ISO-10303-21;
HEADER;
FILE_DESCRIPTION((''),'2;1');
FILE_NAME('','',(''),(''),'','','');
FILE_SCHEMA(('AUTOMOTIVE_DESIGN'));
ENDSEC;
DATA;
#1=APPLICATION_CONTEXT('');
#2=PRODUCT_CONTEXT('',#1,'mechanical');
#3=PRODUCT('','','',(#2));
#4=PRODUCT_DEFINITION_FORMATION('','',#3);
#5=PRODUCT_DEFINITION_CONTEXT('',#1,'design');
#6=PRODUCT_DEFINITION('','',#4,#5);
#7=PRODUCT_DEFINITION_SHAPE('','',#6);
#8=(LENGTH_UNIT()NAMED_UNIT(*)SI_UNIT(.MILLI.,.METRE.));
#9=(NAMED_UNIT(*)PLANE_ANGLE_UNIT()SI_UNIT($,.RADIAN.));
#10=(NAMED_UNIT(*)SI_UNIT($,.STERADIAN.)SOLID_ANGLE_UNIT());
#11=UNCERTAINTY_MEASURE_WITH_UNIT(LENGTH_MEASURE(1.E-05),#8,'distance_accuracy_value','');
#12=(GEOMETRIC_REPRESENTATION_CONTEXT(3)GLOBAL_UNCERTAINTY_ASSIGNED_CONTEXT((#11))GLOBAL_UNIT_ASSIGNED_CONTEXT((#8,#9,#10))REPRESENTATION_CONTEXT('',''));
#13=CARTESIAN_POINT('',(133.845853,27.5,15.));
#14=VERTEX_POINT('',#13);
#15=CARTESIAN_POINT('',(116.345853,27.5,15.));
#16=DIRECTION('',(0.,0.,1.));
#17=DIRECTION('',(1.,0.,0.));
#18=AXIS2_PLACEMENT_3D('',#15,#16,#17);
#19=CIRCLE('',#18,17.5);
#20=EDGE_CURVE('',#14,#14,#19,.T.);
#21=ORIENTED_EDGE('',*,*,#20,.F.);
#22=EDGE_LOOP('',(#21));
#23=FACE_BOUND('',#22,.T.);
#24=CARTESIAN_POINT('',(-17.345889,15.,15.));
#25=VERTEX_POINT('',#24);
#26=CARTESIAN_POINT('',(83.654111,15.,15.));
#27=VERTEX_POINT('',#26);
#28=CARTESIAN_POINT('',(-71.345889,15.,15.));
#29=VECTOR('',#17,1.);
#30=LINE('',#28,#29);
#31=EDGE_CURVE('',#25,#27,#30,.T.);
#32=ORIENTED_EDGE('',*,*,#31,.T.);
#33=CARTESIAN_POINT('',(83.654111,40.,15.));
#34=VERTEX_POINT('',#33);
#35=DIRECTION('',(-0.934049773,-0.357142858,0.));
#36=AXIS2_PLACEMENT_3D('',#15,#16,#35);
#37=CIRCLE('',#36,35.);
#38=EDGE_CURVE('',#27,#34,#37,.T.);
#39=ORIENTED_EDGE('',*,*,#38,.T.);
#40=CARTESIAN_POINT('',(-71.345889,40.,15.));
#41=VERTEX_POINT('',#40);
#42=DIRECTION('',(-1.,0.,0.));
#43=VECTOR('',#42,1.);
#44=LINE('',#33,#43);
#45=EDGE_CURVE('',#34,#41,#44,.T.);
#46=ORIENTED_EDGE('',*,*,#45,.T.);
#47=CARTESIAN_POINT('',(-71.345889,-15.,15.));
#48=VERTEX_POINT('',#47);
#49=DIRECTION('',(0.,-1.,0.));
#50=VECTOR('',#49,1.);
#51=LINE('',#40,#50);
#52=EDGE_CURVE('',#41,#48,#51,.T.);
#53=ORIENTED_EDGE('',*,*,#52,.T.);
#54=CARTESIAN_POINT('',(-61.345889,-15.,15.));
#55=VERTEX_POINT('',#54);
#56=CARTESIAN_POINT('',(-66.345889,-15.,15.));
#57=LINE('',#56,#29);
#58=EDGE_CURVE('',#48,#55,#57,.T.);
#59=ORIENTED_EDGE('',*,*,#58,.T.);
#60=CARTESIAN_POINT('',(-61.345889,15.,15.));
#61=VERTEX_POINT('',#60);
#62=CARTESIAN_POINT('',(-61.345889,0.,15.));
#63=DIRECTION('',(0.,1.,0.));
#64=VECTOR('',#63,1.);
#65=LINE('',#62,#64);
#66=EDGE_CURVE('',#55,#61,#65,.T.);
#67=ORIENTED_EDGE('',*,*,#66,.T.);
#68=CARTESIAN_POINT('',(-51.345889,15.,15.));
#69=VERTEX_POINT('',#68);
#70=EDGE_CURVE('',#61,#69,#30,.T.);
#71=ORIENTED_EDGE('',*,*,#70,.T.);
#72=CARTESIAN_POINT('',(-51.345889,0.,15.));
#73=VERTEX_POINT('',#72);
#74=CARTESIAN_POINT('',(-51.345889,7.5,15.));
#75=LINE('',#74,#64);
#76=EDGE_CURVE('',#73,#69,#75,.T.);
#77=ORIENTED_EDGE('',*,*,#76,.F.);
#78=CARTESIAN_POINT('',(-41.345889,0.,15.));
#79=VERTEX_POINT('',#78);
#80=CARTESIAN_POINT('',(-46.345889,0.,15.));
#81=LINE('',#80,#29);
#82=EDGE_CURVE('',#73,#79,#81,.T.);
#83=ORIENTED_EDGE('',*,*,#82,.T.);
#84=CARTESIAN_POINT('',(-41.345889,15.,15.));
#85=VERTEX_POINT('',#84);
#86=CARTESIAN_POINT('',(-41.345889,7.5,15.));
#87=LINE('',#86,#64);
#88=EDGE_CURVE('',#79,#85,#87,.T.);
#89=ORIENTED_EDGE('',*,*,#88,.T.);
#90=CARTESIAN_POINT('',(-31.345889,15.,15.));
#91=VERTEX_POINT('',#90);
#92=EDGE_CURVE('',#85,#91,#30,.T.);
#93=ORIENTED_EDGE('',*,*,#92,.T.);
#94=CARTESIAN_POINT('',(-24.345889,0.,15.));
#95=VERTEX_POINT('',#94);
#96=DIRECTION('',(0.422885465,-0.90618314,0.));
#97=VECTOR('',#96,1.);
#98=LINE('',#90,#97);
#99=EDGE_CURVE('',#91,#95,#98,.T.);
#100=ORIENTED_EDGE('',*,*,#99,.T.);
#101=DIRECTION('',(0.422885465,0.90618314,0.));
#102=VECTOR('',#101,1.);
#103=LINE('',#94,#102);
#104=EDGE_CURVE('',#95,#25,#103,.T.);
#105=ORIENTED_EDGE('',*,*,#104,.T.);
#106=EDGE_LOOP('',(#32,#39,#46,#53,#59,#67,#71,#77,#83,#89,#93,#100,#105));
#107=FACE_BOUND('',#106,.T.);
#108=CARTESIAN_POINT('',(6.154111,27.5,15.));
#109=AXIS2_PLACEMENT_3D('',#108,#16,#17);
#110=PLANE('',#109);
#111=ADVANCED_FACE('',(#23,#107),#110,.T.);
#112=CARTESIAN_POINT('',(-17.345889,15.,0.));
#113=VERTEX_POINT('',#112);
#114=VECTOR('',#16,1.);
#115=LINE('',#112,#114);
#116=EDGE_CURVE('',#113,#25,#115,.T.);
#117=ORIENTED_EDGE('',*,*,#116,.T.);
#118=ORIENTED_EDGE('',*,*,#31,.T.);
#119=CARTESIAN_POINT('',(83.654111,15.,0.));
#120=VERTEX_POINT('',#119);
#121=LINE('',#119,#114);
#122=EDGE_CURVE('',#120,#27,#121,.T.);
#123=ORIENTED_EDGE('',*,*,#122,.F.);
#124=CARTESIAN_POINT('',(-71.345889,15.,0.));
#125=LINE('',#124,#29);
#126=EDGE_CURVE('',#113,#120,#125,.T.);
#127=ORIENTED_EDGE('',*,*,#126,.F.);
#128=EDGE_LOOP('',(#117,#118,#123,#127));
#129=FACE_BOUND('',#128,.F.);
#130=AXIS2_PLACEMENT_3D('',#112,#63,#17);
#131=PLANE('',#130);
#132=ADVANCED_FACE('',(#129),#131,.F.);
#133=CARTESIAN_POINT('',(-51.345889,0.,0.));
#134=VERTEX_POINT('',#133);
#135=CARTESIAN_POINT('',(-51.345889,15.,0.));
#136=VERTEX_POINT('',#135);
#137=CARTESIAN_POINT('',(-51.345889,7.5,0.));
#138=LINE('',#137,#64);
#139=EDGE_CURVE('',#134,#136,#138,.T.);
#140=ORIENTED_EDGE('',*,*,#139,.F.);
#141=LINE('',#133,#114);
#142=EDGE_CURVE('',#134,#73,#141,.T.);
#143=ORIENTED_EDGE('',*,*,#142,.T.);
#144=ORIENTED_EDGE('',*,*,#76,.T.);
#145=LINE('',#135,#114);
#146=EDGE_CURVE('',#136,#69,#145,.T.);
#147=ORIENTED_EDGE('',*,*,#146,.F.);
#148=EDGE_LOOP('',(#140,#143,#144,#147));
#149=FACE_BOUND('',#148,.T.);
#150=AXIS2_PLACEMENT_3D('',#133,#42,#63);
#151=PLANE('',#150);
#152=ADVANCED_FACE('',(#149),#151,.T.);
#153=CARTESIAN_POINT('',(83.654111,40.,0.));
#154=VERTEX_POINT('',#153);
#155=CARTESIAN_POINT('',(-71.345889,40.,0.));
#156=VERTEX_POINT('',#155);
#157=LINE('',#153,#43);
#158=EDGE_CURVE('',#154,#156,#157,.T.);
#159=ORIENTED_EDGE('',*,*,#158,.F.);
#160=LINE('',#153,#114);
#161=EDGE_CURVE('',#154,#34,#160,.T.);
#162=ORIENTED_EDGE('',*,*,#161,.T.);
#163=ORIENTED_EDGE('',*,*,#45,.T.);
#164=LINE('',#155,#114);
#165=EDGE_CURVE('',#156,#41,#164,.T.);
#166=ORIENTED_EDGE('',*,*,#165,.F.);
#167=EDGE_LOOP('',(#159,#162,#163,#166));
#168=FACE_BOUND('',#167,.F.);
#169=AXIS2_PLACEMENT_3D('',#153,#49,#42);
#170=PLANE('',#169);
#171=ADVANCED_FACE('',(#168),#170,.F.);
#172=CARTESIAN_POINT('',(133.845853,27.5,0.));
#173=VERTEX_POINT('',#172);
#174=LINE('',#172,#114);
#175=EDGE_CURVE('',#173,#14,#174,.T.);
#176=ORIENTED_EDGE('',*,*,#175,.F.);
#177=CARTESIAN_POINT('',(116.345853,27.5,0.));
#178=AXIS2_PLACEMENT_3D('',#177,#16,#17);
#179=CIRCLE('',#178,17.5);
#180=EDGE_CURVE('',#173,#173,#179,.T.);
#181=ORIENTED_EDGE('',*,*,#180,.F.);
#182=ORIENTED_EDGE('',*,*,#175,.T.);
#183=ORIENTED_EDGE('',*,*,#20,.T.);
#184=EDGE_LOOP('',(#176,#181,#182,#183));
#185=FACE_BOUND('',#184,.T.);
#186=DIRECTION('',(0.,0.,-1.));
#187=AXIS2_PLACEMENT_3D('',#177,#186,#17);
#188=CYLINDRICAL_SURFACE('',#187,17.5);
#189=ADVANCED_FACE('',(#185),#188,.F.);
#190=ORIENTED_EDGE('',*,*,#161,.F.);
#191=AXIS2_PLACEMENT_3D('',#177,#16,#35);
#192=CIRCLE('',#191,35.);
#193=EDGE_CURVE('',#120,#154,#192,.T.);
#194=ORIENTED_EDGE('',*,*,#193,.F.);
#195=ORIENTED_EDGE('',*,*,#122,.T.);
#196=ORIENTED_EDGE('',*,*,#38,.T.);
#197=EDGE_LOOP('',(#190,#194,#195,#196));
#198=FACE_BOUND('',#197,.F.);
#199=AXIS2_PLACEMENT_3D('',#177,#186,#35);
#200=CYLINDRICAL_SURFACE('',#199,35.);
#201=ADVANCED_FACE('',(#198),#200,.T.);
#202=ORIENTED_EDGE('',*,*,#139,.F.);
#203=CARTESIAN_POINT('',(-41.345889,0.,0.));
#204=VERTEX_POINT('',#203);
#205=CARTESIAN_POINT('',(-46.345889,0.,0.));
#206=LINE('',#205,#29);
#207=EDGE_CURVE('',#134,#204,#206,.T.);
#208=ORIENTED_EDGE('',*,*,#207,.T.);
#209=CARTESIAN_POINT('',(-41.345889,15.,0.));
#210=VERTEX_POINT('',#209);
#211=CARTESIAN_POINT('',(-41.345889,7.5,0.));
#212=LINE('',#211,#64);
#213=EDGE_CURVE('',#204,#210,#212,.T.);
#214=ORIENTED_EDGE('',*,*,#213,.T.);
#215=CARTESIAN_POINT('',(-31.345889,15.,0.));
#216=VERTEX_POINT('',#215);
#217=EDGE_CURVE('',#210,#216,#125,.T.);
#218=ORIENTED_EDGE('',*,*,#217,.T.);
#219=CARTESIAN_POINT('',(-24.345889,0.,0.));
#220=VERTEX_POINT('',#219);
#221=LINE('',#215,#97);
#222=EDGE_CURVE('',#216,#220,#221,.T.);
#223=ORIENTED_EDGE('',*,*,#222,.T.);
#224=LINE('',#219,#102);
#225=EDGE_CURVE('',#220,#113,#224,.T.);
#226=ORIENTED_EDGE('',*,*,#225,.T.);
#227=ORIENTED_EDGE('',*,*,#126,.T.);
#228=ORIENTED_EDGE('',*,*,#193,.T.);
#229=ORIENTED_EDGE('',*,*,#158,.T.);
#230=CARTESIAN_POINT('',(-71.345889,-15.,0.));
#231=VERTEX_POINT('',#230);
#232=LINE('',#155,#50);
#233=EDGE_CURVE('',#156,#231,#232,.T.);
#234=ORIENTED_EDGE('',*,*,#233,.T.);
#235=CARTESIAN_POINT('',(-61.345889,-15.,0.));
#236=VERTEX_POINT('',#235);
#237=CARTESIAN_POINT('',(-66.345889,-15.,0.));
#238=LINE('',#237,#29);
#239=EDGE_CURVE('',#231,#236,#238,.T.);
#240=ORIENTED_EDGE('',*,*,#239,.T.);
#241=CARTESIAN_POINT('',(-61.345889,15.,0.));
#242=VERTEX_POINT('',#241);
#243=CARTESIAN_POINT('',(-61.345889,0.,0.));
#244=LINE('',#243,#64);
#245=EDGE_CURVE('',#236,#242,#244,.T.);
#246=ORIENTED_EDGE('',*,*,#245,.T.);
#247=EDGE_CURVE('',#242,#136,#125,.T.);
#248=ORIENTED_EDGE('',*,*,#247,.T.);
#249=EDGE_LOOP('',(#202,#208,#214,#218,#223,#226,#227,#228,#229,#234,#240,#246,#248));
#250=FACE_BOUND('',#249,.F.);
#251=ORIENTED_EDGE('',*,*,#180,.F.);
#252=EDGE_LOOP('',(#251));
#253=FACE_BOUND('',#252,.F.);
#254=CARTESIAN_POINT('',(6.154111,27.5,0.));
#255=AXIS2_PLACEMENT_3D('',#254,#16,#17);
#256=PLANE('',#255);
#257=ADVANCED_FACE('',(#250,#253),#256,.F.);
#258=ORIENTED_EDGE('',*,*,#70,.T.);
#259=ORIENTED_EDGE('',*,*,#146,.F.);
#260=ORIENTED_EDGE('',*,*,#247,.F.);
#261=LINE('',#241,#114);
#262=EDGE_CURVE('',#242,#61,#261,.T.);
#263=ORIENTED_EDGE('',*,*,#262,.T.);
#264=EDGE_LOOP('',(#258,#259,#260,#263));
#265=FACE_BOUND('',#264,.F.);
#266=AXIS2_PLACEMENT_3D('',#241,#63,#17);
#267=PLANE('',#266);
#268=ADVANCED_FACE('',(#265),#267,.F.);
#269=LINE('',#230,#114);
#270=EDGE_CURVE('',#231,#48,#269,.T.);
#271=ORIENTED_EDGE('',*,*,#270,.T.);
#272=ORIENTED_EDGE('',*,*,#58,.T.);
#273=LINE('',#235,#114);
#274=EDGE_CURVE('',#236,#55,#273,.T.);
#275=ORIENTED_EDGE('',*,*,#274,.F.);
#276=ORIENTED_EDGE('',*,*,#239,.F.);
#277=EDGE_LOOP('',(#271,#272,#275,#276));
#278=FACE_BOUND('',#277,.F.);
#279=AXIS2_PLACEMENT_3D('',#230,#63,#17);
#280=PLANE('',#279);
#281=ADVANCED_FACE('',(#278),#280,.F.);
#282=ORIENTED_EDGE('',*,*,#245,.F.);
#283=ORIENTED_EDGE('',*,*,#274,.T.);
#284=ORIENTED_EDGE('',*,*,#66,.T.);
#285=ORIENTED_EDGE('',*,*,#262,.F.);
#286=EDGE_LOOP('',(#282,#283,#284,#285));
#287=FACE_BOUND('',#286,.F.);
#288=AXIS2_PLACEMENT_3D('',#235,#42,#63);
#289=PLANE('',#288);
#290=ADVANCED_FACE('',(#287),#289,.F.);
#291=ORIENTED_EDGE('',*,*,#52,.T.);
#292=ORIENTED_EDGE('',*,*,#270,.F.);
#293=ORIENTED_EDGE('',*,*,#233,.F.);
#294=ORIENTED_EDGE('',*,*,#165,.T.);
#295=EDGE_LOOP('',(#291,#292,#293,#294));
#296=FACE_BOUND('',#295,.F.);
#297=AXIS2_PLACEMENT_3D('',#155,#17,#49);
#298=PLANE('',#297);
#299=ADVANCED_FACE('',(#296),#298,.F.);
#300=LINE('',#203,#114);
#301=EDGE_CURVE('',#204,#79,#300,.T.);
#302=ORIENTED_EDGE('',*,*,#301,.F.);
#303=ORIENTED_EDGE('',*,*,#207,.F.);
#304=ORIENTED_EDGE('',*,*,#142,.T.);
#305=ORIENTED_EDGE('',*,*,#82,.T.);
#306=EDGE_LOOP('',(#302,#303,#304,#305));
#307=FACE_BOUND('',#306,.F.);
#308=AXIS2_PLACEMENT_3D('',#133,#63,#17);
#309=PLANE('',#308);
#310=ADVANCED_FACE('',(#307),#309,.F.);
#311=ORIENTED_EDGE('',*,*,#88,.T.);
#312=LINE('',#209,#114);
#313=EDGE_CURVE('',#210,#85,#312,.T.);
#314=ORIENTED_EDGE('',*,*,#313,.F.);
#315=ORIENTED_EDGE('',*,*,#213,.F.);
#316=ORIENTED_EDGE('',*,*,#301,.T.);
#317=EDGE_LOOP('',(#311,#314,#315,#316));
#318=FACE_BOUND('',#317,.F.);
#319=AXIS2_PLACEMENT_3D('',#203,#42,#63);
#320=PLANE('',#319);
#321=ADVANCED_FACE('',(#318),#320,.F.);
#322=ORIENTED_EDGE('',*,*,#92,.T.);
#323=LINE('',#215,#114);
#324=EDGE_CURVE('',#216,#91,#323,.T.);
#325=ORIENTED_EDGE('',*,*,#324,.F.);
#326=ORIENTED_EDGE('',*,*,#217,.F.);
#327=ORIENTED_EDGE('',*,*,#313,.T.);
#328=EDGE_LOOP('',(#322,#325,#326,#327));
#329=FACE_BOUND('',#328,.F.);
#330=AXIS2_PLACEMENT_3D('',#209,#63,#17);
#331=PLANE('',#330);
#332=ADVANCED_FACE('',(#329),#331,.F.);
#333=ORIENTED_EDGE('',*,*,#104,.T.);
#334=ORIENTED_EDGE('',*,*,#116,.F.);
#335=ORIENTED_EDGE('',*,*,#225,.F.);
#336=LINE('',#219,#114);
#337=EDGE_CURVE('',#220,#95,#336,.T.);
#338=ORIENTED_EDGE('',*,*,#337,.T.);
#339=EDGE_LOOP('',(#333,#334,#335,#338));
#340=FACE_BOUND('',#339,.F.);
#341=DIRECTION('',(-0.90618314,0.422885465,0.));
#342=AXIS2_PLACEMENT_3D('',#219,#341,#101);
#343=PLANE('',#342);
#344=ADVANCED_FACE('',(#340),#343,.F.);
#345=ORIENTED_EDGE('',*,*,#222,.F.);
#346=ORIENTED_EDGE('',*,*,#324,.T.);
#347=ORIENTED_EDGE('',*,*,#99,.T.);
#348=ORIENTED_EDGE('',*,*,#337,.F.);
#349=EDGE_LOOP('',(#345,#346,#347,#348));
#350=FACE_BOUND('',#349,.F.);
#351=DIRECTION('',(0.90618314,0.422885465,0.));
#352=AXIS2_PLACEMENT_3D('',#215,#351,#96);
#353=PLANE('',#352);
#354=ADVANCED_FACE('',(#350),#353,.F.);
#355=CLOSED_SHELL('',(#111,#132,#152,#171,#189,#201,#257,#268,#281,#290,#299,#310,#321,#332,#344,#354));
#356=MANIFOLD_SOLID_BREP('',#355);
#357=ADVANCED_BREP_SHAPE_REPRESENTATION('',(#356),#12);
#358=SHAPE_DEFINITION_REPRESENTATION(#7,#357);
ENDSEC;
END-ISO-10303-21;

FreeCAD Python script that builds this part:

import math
import FreeCAD as App
import Part
import Sketcher

doc = App.newDocument("Part")
body = doc.addObject("PartDesign::Body", "Body")

# Sketch on XY plane
sketch1 = doc.addObject("Sketcher::SketchObject", "Sketch")
body.addObject(sketch1)
sketch1.AttachmentSupport = (doc.XY_Plane, [""])
sketch1.MapMode = "FlatFace"
sketch1.addGeometry([
    Part.LineSegment(App.Vector(-71, 40, 0), App.Vector(-71, -15, 0)),  # 0
    Part.LineSegment(App.Vector(-71, -15, 0), App.Vector(-61, -15, 0)),  # 1
    Part.LineSegment(App.Vector(-61, -15, 0), App.Vector(-61, 15, 0)),  # 2
    Part.LineSegment(App.Vector(-61, 15, 0), App.Vector(-51, 15, 0)),  # 3
    Part.LineSegment(App.Vector(-51, 15, 0), App.Vector(-51, 0, 0)),  # 4
    Part.LineSegment(App.Vector(-51, 0, 0), App.Vector(-41, 0, 0)),  # 5
    Part.LineSegment(App.Vector(-41, 0, 0), App.Vector(-41, 15, 0)),  # 6
    Part.LineSegment(App.Vector(-41, 15, 0), App.Vector(-31, 15, 0)),  # 7
    Part.LineSegment(App.Vector(-31, 15, 0), App.Vector(-24, 0, 0)),  # 8
    Part.LineSegment(App.Vector(-24, 0, 0), App.Vector(-17, 15, 0)),  # 9
    Part.LineSegment(App.Vector(-17, 15, 0), App.Vector(84, 15, 0)),  # 10
    Part.ArcOfCircle(Part.Circle(App.Vector(116, 28, 0), App.Vector(0, 0, 1), 35), math.radians(-159), math.radians(159)),  # 11
    Part.LineSegment(App.Vector(84, 40, 0), App.Vector(-71, 40, 0)),  # 12
    Part.Circle(App.Vector(116, 28, 0), App.Vector(0, 0, 1), 18),  # 13
], False)
sketch1.addConstraint([
    Sketcher.Constraint("Coincident", 0, 2, 1, 1),
    Sketcher.Constraint("Coincident", 1, 2, 2, 1),
    Sketcher.Constraint("Coincident", 2, 2, 3, 1),
    Sketcher.Constraint("Coincident", 3, 2, 4, 1),
    Sketcher.Constraint("Coincident", 4, 2, 5, 1),
    Sketcher.Constraint("Coincident", 5, 2, 6, 1),
    Sketcher.Constraint("Coincident", 6, 2, 7, 1),
    Sketcher.Constraint("Coincident", 7, 2, 8, 1),
    Sketcher.Constraint("Coincident", 8, 2, 9, 1),
    Sketcher.Constraint("Coincident", 9, 2, 10, 1),
    Sketcher.Constraint("Coincident", 10, 2, 11, 1),
    Sketcher.Constraint("Coincident", 11, 2, 12, 1),
    Sketcher.Constraint("Coincident", 12, 2, 0, 1),
    Sketcher.Constraint("Vertical", 0),
    Sketcher.Constraint("Horizontal", 1),
    Sketcher.Constraint("Vertical", 2),
    Sketcher.Constraint("Horizontal", 3),
    Sketcher.Constraint("Vertical", 4),
    Sketcher.Constraint("Horizontal", 5),
    Sketcher.Constraint("Vertical", 6),
    Sketcher.Constraint("Horizontal", 7),
    Sketcher.Constraint("Horizontal", 10),
    Sketcher.Constraint("Horizontal", 12),
    Sketcher.Constraint("Coincident", 13, 3, 11, 3),
    Sketcher.Constraint("PointOnObject", 4, 2, -1),
    Sketcher.Constraint("PointOnObject", 8, 2, -1),
    Sketcher.Constraint("Horizontal", 3, 2, 6, 2),
    Sketcher.Constraint("Horizontal", 7, 2, 9, 2),
    Sketcher.Constraint("Vertical", 10, 2, 11, 2),
    Sketcher.Constraint("Equal", 1, 3),
    Sketcher.Constraint("Equal", 3, 5),
    Sketcher.Constraint("Equal", 5, 7),
    Sketcher.Constraint("Equal", 8, 9),
    Sketcher.Constraint("Diameter", 13, 35.0),
    Sketcher.Constraint("Radius", 11, 35.0),
    Sketcher.Constraint("DistanceX", 1, 1, 1, 2, 10.0),
    Sketcher.Constraint("DistanceX", 10, 1, 10, 2, 101.0),
    Sketcher.Constraint("DistanceX", 12, 2, 12, 1, 155.0),
    Sketcher.Constraint("DistanceY", 0, 2, 0, 1, 55.0),
    Sketcher.Constraint("DistanceY", 2, 1, 2, 2, 30.0),
    Sketcher.Constraint("DistanceY", 4, 2, 4, 1, 15.0),
    Sketcher.Constraint("DistanceX", 0, 2, -1, 1, 71.345889),
])
pad1 = doc.addObject("PartDesign::Pad", "Pad")
body.addObject(pad1)
pad1.Profile = sketch1
pad1.Length = 15

doc.recompute()
